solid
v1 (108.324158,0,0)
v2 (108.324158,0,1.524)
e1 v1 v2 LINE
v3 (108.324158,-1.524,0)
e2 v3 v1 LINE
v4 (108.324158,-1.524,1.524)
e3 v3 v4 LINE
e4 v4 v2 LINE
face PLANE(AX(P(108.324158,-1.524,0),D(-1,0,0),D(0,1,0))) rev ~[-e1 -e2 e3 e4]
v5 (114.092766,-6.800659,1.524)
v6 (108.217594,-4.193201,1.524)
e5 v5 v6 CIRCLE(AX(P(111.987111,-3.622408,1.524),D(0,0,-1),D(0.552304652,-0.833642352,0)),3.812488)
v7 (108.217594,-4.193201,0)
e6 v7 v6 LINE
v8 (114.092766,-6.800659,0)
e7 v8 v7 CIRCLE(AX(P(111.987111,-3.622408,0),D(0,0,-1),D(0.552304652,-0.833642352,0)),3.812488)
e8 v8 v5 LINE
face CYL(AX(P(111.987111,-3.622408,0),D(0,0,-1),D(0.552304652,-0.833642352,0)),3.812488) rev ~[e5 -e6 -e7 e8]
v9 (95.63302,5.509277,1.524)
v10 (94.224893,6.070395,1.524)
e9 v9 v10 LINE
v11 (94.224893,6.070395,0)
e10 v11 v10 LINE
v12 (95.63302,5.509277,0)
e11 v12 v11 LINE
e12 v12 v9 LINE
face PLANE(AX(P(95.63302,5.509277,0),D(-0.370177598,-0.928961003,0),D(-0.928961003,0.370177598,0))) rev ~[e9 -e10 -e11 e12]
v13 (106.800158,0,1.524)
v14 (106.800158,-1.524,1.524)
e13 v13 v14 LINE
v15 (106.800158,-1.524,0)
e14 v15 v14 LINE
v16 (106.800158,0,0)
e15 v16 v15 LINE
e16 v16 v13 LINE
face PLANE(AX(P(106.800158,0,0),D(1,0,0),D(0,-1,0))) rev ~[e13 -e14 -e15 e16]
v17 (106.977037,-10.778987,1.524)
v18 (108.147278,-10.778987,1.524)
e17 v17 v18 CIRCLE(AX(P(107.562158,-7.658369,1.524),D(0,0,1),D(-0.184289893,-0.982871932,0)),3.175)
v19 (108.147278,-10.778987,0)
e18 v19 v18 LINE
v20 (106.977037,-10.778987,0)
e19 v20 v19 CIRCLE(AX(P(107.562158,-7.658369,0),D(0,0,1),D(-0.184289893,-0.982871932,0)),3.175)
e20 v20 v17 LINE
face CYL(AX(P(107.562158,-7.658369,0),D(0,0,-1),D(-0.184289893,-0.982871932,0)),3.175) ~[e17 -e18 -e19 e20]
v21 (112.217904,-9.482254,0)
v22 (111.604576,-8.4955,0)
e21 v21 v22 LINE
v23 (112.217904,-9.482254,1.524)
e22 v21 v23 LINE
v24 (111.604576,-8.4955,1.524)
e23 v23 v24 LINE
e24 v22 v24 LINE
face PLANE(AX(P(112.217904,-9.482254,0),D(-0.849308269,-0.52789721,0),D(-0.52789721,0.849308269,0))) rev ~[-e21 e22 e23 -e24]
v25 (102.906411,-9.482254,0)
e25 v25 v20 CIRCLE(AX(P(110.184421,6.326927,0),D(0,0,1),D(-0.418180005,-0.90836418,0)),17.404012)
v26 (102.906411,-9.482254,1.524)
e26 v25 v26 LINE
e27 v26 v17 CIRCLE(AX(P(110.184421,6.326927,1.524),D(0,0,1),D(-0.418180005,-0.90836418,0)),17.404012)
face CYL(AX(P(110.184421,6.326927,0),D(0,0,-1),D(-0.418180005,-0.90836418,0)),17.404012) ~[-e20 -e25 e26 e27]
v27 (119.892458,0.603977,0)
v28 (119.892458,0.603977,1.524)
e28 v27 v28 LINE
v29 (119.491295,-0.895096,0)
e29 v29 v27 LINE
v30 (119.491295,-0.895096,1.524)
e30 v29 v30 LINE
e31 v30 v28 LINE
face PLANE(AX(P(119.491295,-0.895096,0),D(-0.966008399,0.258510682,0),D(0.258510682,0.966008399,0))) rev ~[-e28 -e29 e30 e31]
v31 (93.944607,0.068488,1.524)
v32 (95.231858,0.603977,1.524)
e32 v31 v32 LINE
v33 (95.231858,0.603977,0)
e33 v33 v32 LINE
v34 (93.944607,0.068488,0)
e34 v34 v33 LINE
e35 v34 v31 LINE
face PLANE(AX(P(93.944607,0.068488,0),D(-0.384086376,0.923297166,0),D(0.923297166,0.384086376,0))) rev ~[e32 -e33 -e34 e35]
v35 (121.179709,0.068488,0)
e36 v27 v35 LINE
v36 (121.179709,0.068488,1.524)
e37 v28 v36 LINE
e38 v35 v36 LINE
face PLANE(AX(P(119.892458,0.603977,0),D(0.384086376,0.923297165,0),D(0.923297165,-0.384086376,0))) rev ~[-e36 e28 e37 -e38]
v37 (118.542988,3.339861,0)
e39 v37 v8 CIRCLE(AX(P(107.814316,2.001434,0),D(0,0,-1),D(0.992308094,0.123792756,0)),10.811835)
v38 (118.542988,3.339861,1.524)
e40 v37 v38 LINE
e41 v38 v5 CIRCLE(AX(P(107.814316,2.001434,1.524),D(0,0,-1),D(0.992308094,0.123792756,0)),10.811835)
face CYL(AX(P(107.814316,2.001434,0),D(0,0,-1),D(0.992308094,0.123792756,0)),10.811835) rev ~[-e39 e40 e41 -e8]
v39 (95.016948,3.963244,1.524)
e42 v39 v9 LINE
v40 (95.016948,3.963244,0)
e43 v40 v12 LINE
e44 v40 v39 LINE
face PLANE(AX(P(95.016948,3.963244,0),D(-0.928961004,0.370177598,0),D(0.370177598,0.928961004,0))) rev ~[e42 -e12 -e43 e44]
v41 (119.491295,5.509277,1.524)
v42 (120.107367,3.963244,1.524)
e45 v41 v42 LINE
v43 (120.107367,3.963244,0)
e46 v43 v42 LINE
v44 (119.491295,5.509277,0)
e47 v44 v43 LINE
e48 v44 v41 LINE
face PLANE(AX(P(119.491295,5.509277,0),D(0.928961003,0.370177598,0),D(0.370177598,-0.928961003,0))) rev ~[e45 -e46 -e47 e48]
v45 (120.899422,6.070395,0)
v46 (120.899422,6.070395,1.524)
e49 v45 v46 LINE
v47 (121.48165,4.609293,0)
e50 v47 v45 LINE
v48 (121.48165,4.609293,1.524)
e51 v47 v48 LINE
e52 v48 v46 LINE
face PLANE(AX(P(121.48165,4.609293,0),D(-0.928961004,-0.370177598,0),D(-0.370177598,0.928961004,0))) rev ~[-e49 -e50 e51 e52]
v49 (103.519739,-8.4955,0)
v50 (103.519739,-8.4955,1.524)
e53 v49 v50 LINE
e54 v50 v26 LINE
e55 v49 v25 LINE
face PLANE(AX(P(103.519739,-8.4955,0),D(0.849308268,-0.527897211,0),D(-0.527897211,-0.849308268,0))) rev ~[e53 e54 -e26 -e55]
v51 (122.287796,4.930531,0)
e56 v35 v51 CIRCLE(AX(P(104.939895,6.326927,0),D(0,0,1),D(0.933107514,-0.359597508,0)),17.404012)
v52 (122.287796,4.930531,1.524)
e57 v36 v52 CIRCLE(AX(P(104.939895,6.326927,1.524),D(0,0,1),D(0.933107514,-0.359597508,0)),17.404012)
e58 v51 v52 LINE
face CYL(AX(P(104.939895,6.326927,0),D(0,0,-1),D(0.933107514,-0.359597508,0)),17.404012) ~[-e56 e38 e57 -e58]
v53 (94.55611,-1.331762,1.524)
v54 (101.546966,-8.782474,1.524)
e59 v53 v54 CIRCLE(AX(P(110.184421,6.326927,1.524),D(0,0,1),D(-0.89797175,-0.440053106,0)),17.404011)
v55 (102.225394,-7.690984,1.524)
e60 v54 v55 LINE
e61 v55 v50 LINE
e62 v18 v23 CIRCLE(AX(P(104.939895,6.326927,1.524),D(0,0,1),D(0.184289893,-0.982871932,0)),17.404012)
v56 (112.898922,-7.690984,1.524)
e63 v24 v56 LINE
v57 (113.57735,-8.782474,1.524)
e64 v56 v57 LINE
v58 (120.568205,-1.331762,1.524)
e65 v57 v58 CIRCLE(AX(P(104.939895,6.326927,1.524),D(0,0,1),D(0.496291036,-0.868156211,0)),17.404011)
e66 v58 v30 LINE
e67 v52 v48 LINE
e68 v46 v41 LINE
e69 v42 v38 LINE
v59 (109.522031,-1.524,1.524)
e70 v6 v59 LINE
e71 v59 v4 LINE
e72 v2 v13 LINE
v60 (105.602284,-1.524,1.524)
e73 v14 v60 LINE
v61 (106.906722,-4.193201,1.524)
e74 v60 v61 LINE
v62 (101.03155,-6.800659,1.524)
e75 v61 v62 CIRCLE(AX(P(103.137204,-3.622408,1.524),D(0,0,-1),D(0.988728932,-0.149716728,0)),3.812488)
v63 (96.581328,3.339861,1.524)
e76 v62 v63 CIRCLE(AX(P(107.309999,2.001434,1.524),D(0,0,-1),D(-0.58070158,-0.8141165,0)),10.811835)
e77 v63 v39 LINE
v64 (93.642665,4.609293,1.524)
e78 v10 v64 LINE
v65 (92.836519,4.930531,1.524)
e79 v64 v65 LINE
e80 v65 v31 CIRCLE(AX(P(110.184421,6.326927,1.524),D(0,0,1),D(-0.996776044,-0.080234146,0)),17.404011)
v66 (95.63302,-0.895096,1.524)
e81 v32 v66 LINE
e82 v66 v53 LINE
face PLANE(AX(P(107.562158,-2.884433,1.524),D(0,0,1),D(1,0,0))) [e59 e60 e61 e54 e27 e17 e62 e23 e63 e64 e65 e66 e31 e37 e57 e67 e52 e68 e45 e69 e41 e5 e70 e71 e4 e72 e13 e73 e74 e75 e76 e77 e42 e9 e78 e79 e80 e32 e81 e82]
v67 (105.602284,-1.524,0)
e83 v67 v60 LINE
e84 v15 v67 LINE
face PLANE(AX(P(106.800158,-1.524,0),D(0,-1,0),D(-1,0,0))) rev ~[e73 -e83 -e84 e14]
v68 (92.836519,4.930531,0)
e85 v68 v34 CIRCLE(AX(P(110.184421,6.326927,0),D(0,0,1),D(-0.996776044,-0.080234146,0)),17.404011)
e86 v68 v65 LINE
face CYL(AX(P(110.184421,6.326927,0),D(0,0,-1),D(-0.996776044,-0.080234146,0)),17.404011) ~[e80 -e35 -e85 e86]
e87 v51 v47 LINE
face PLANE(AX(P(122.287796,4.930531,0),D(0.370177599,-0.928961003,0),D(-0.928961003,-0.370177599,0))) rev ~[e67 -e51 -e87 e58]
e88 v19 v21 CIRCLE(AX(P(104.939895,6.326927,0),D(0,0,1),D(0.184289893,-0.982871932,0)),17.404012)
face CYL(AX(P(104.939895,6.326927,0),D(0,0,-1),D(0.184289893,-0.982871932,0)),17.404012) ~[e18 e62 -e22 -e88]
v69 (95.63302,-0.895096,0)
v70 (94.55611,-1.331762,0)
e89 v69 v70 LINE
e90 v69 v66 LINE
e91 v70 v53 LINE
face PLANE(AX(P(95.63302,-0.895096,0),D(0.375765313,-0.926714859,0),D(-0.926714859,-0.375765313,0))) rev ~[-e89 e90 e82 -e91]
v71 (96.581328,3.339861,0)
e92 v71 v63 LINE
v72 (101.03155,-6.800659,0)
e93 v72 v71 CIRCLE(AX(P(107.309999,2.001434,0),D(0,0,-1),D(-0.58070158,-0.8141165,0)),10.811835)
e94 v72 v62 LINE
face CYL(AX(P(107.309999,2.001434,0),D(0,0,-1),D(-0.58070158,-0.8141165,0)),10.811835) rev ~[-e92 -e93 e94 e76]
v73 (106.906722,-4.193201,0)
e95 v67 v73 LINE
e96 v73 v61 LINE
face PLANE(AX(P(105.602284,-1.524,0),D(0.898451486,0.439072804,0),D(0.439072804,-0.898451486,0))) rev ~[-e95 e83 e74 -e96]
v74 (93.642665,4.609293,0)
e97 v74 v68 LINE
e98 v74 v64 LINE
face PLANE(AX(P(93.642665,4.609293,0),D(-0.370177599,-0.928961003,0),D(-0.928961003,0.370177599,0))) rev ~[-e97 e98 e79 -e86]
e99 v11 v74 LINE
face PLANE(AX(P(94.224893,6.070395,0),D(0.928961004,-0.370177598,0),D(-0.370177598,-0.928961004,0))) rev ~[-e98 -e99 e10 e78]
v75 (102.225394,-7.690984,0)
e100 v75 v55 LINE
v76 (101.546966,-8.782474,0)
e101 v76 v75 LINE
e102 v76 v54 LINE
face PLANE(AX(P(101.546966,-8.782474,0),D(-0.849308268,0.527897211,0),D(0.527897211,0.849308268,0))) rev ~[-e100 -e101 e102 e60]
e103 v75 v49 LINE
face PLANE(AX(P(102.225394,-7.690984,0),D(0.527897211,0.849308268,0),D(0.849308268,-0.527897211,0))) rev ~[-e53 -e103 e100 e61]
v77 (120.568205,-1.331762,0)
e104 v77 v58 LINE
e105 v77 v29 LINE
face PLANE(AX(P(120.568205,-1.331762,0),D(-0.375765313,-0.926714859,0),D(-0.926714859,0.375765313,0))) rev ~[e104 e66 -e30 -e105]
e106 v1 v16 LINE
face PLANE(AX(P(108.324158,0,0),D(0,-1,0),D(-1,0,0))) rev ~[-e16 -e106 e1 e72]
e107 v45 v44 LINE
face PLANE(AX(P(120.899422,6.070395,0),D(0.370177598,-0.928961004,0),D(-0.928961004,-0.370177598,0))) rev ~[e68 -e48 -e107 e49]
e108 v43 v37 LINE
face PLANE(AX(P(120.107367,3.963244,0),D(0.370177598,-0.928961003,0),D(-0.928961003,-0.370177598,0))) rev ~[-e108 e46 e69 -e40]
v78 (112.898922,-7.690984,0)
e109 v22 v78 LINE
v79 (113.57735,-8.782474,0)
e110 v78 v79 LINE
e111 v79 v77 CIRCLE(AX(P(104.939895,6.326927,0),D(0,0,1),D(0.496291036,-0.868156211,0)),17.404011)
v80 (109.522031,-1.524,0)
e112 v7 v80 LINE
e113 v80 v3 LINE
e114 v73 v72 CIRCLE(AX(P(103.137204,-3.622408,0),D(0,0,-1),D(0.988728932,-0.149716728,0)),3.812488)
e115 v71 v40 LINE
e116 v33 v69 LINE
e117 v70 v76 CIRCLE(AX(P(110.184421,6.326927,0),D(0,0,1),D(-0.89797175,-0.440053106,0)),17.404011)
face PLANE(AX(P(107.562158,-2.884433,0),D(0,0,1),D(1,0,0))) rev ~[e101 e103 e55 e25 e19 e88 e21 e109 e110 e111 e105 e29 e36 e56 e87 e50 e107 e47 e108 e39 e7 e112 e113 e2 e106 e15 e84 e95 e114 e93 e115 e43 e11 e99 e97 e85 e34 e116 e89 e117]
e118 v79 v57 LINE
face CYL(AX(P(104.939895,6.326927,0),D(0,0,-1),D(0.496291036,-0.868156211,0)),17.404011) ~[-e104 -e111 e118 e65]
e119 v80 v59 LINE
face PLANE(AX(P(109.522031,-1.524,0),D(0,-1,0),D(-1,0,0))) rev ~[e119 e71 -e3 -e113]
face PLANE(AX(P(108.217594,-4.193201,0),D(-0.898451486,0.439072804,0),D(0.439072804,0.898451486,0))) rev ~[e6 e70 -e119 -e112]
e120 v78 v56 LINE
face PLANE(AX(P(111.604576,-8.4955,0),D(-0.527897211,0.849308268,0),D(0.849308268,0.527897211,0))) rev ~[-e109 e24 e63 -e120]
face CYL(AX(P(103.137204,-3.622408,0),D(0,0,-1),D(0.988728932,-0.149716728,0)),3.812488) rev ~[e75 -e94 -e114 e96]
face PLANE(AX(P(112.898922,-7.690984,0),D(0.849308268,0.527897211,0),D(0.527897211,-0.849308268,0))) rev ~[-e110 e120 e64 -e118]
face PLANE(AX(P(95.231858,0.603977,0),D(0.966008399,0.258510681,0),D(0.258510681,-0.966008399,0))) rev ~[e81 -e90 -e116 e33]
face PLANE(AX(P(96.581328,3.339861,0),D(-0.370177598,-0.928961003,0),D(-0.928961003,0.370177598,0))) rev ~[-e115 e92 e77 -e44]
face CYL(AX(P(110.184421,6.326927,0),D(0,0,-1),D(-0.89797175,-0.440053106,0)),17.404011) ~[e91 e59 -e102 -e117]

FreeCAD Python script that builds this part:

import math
import FreeCAD as App
import Part
import Sketcher
Q = App.Units.Quantity

doc = App.newDocument("Part")
body = doc.addObject("PartDesign::Body", "Body")

# Sketch on XY plane
sketch1 = body.newObject("Sketcher::SketchObject", "Sketch")
sketch1.AttachmentSupport = (doc.getObject("XY_Plane"), [""])
sketch1.MapMode = "FlatFace"
sketch1.addGeometry([
    Part.LineSegment(App.Vector(106.800158, 0, 0), App.Vector(106.800158, -1.524, 0)),  # 0
    Part.LineSegment(App.Vector(106.800158, -1.524, 0), App.Vector(105.602284, -1.524, 0)),  # 1
    Part.LineSegment(App.Vector(105.602284, -1.524, 0), App.Vector(106.906722, -4.193201, 0)),  # 2
    Part.ArcOfCircle(Part.Circle(App.Vector(103.137204, -3.622408, 0), App.Vector(0, 0, 1), 3.812488), math.radians(-123.525266), math.radians(-8.610511)),  # 3
    Part.ArcOfCircle(Part.Circle(App.Vector(107.309999, 2.001434, 0), App.Vector(0, 0, 1), 10.811835), math.radians(172.888956), math.radians(234.500097)),  # 4
    Part.LineSegment(App.Vector(96.581328, 3.339861, 0), App.Vector(95.016948, 3.963244, 0)),  # 5
    Part.LineSegment(App.Vector(95.016948, 3.963244, 0), App.Vector(95.63302, 5.509277, 0)),  # 6
    Part.LineSegment(App.Vector(95.63302, 5.509277, 0), App.Vector(94.224893, 6.070395, 0)),  # 7
    Part.LineSegment(App.Vector(94.224893, 6.070395, 0), App.Vector(93.642665, 4.609293, 0)),  # 8
    Part.LineSegment(App.Vector(93.642665, 4.609293, 0), App.Vector(92.836519, 4.930531, 0)),  # 9
    Part.ArcOfCircle(Part.Circle(App.Vector(110.184421, 6.326927, 0), App.Vector(0, 0, 1), 17.404011), math.radians(-175.397975), math.radians(-158.92452)),  # 10
    Part.LineSegment(App.Vector(93.944607, 0.068488, 0), App.Vector(95.231858, 0.603977, 0)),  # 11
    Part.LineSegment(App.Vector(95.231858, 0.603977, 0), App.Vector(95.63302, -0.895096, 0)),  # 12
    Part.LineSegment(App.Vector(95.63302, -0.895096, 0), App.Vector(94.55611, -1.331762, 0)),  # 13
    Part.ArcOfCircle(Part.Circle(App.Vector(110.184421, 6.326927, 0), App.Vector(0, 0, 1), 17.404011), math.radians(-153.89273), math.radians(-119.754919)),  # 14
    Part.LineSegment(App.Vector(101.546966, -8.782474, 0), App.Vector(102.225394, -7.690984, 0)),  # 15
    Part.LineSegment(App.Vector(102.225394, -7.690984, 0), App.Vector(103.519739, -8.4955, 0)),  # 16
    Part.LineSegment(App.Vector(103.519739, -8.4955, 0), App.Vector(102.906411, -9.482254, 0)),  # 17
    Part.ArcOfCircle(Part.Circle(App.Vector(110.184421, 6.326927, 0), App.Vector(0, 0, 1), 17.404012), math.radians(-114.719737), math.radians(-100.619734)),  # 18
    Part.ArcOfCircle(Part.Circle(App.Vector(107.562158, -7.658369, 0), App.Vector(0, 0, 1), 3.175), math.radians(-100.619734), math.radians(-79.380266)),  # 19
    Part.ArcOfCircle(Part.Circle(App.Vector(104.939895, 6.326927, 0), App.Vector(0, 0, 1), 17.404012), math.radians(-79.380266), math.radians(-65.280263)),  # 20
    Part.LineSegment(App.Vector(112.217904, -9.482254, 0), App.Vector(111.604576, -8.4955, 0)),  # 21
    Part.LineSegment(App.Vector(111.604576, -8.4955, 0), App.Vector(112.898922, -7.690984, 0)),  # 22
    Part.LineSegment(App.Vector(112.898922, -7.690984, 0), App.Vector(113.57735, -8.782474, 0)),  # 23
    Part.ArcOfCircle(Part.Circle(App.Vector(104.939895, 6.326927, 0), App.Vector(0, 0, 1), 17.404011), math.radians(-60.245081), math.radians(-26.10727)),  # 24
    Part.LineSegment(App.Vector(120.568205, -1.331762, 0), App.Vector(119.491295, -0.895096, 0)),  # 25
    Part.LineSegment(App.Vector(119.491295, -0.895096, 0), App.Vector(119.892458, 0.603977, 0)),  # 26
    Part.LineSegment(App.Vector(119.892458, 0.603977, 0), App.Vector(121.179709, 0.068488, 0)),  # 27
    Part.ArcOfCircle(Part.Circle(App.Vector(104.939895, 6.326927, 0), App.Vector(0, 0, 1), 17.404012), math.radians(-21.07548), math.radians(-4.602025)),  # 28
    Part.LineSegment(App.Vector(122.287796, 4.930531, 0), App.Vector(121.48165, 4.609293, 0)),  # 29
    Part.LineSegment(App.Vector(121.48165, 4.609293, 0), App.Vector(120.899422, 6.070395, 0)),  # 30
    Part.LineSegment(App.Vector(120.899422, 6.070395, 0), App.Vector(119.491295, 5.509277, 0)),  # 31
    Part.LineSegment(App.Vector(119.491295, 5.509277, 0), App.Vector(120.107367, 3.963244, 0)),  # 32
    Part.LineSegment(App.Vector(120.107367, 3.963244, 0), App.Vector(118.542988, 3.339861, 0)),  # 33
    Part.ArcOfCircle(Part.Circle(App.Vector(107.814316, 2.001434, 0), App.Vector(0, 0, 1), 10.811835), math.radians(-54.500097), math.radians(7.111044)),  # 34
    Part.ArcOfCircle(Part.Circle(App.Vector(111.987111, -3.622408, 0), App.Vector(0, 0, 1), 3.812488), math.radians(-171.389489), math.radians(-56.474734)),  # 35
    Part.LineSegment(App.Vector(108.217594, -4.193201, 0), App.Vector(109.522031, -1.524, 0)),  # 36
    Part.LineSegment(App.Vector(109.522031, -1.524, 0), App.Vector(108.324158, -1.524, 0)),  # 37
    Part.LineSegment(App.Vector(108.324158, -1.524, 0), App.Vector(108.324158, 0, 0)),  # 38
    Part.LineSegment(App.Vector(108.324158, 0, 0), App.Vector(106.800158, 0, 0)),  # 39
], False)
sketch1.addConstraint([
    Sketcher.Constraint("Coincident", 0, 2, 1, 1),
    Sketcher.Constraint("Coincident", 1, 2, 2, 1),
    Sketcher.Constraint("Coincident", 2, 2, 3, 2),
    Sketcher.Constraint("Coincident", 3, 1, 4, 2),
    Sketcher.Constraint("Coincident", 4, 1, 5, 1),
    Sketcher.Constraint("Coincident", 5, 2, 6, 1),
    Sketcher.Constraint("Coincident", 6, 2, 7, 1),
    Sketcher.Constraint("Coincident", 7, 2, 8, 1),
    Sketcher.Constraint("Coincident", 8, 2, 9, 1),
    Sketcher.Constraint("Coincident", 9, 2, 10, 1),
    Sketcher.Constraint("Coincident", 10, 2, 11, 1),
    Sketcher.Constraint("Coincident", 11, 2, 12, 1),
    Sketcher.Constraint("Coincident", 12, 2, 13, 1),
    Sketcher.Constraint("Coincident", 13, 2, 14, 1),
    Sketcher.Constraint("Coincident", 14, 2, 15, 1),
    Sketcher.Constraint("Coincident", 15, 2, 16, 1),
    Sketcher.Constraint("Coincident", 16, 2, 17, 1),
    Sketcher.Constraint("Coincident", 17, 2, 18, 1),
    Sketcher.Constraint("Coincident", 18, 2, 19, 1),
    Sketcher.Constraint("Coincident", 19, 2, 20, 1),
    Sketcher.Constraint("Coincident", 20, 2, 21, 1),
    Sketcher.Constraint("Coincident", 21, 2, 22, 1),
    Sketcher.Constraint("Coincident", 22, 2, 23, 1),
    Sketcher.Constraint("Coincident", 23, 2, 24, 1),
    Sketcher.Constraint("Coincident", 24, 2, 25, 1),
    Sketcher.Constraint("Coincident", 25, 2, 26, 1),
    Sketcher.Constraint("Coincident", 26, 2, 27, 1),
    Sketcher.Constraint("Coincident", 27, 2, 28, 1),
    Sketcher.Constraint("Coincident", 28, 2, 29, 1),
    Sketcher.Constraint("Coincident", 29, 2, 30, 1),
    Sketcher.Constraint("Coincident", 30, 2, 31, 1),
    Sketcher.Constraint("Coincident", 31, 2, 32, 1),
    Sketcher.Constraint("Coincident", 32, 2, 33, 1),
    Sketcher.Constraint("Coincident", 33, 2, 34, 2),
    Sketcher.Constraint("Coincident", 34, 1, 35, 2),
    Sketcher.Constraint("Coincident", 35, 1, 36, 1),
    Sketcher.Constraint("Coincident", 36, 2, 37, 1),
    Sketcher.Constraint("Coincident", 37, 2, 38, 1),
    Sketcher.Constraint("Coincident", 38, 2, 39, 1),
    Sketcher.Constraint("Coincident", 39, 2, 0, 1),
    Sketcher.Constraint("Vertical", 0),
    Sketcher.Constraint("Horizontal", 1),
    Sketcher.Constraint("Horizontal", 37),
    Sketcher.Constraint("Vertical", 38),
    Sketcher.Constraint("Horizontal", 39),
    Sketcher.Constraint("Coincident", 14, 3, 10, 3),
    Sketcher.Constraint("Coincident", 18, 3, 10, 3),
    Sketcher.Constraint("Coincident", 24, 3, 20, 3),
    Sketcher.Constraint("Coincident", 28, 3, 20, 3),
    Sketcher.Constraint("PointOnObject", 38, 2, -1),
    Sketcher.Constraint("Radius", 19, Q("0.125 in")),
    Sketcher.Constraint("DistanceX", 39, 2, 39, 1, Q("0.06 in")),
    Sketcher.Constraint("DistanceY", 0, 2, 0, 1, Q("0.06 in")),
    Sketcher.Constraint("DistanceY", 38, 1, 38, 2, Q("0.06 in")),
    Sketcher.Constraint("Distance", 16, Q("0.06 in")),
    Sketcher.Constraint("Distance", 22, Q("0.06 in")),
    Sketcher.Constraint("DistanceX", 0, 2, 19, 3, Q("0.03 in")),
    Sketcher.Constraint("Radius", 10, 17.404011),
    Sketcher.Constraint("Radius", 14, 17.404011),
    Sketcher.Constraint("Radius", 18, 17.404012),
    Sketcher.Constraint("Radius", 20, 17.404012),
    Sketcher.Constraint("Radius", 24, 17.404011),
    Sketcher.Constraint("Radius", 28, 17.404012),
    Sketcher.Constraint("Radius", 3, 3.812488),
    Sketcher.Constraint("Radius", 4, 10.811835),
    Sketcher.Constraint("Radius", 34, 10.811835),
    Sketcher.Constraint("Radius", 35, 3.812488),
    Sketcher.Constraint("DistanceY", 24, 2, 29, 2, Q("0.2338998 in")),
    Sketcher.Constraint("DistanceX", -1, 1, 4, 3, 107.309999),
    Sketcher.Constraint("DistanceY", 2, 2, -1, 1, 4.193201),
    Sketcher.Constraint("DistanceY", 16, 2, -1, 1, 8.4955),
    Sketcher.Constraint("DistanceY", 21, 2, -1, 1, 8.4955),
    Sketcher.Constraint("DistanceY", 35, 1, -1, 1, 4.193201),
    Sketcher.Constraint("DistanceX", 7, 2, 28, 3, 10.715002),
    Sketcher.Constraint("DistanceY", 8, 2, 7, 2, 1.461102),
    Sketcher.Constraint("DistanceX", 9, 2, 6, 2, 2.796501),
    Sketcher.Constraint("DistanceY", 11, 2, 6, 2, 4.9053),
    Sketcher.Constraint("DistanceX", 16, 2, 18, 2, 3.457298),
    Sketcher.Constraint("DistanceX", 19, 2, 21, 2, 3.457298),
    Sketcher.Constraint("DistanceX", 20, 2, 24, 2, 8.350301),
    Sketcher.Constraint("DistanceX", 25, 2, 28, 2, 2.796501),
    Sketcher.Constraint("DistanceY", 29, 2, 30, 2, 1.461102),
    Sketcher.Constraint("DistanceX", 31, 2, 28, 2, 2.796501),
    Sketcher.Constraint("DistanceY", 26, 2, 31, 2, 4.9053),
    Sketcher.Constraint("Distance", 2, 2.970891),
    Sketcher.Constraint("Distance", 5, 1.68401),
    Sketcher.Constraint("Distance", 6, 1.664261),
    Sketcher.Constraint("Distance", 7, 1.515809),
    Sketcher.Constraint("Distance", 11, 1.394189),
    Sketcher.Constraint("Distance", 12, 1.551821),
    Sketcher.Constraint("Distance", 15, 1.285151),
    Sketcher.Constraint("Distance", 23, 1.285151),
    Sketcher.Constraint("Distance", 26, 1.551821),
    Sketcher.Constraint("Distance", 27, 1.394189),
    Sketcher.Constraint("Distance", 31, 1.515809),
    Sketcher.Constraint("Distance", 32, 1.664261),
    Sketcher.Constraint("Distance", 33, 1.68401),
    Sketcher.Constraint("Distance", 36, 2.970891),
    Sketcher.Constraint("DistanceX", 1, 2, 1, 1, 1.197874),
    Sketcher.Constraint("DistanceX", 37, 2, 37, 1, 1.197874),
    Sketcher.Constraint("DistanceX", -1, 1, 10, 3, 110.184421),
    Sketcher.Constraint("DistanceY", 19, 3, -1, 1, 7.658369),
    Sketcher.Constraint("DistanceX", -1, 1, 35, 3, 111.987111),
    Sketcher.Constraint("DistanceX", -1, 1, 2, 2, 106.906722),
    Sketcher.Constraint("DistanceX", -1, 1, 3, 1, 101.03155),
    Sketcher.Constraint("DistanceY", 3, 1, -1, 1, 6.800659),
    Sketcher.Constraint("DistanceY", -1, 1, 4, 1, 3.339861),
    Sketcher.Constraint("DistanceX", -1, 1, 5, 2, 95.016948),
    Sketcher.Constraint("DistanceX", -1, 1, 6, 2, 95.63302),
    Sketcher.Constraint("DistanceX", -1, 1, 12, 2, 95.63302),
    Sketcher.Constraint("DistanceX", -1, 1, 13, 2, 94.55611),
    Sketcher.Constraint("DistanceX", -1, 1, 16, 2, 103.519739),
    Sketcher.Constraint("DistanceX", -1, 1, 17, 2, 102.906411),
    Sketcher.Constraint("DistanceX", -1, 1, 19, 2, 108.147278),
    Sketcher.Constraint("DistanceX", -1, 1, 22, 2, 112.898922),
    Sketcher.Constraint("DistanceX", -1, 1, 23, 2, 113.57735),
    Sketcher.Constraint("DistanceX", -1, 1, 27, 2, 121.179709),
    Sketcher.Constraint("DistanceY", -1, 1, 28, 2, 4.930531),
    Sketcher.Constraint("DistanceX", -1, 1, 29, 2, 121.48165),
    Sketcher.Constraint("DistanceY", -1, 1, 33, 2, 3.339861),
    Sketcher.Constraint("DistanceY", 34, 1, -1, 1, 6.800659),
    Sketcher.Constraint("DistanceX", 24, 3, 34, 3, 2.874422),
    Sketcher.Constraint("DistanceX", 8, 2, 7, 2, 0.582228),
    Sketcher.Constraint("DistanceX", 10, 2, 5, 2, 1.072341),
    Sketcher.Constraint("DistanceX", 14, 2, 3, 3, 1.590239),
    Sketcher.Constraint("DistanceX", 21, 2, 20, 2, 0.613328),
    Sketcher.Constraint("DistanceY", 22, 2, 25, 2, 6.795889),
])
pad1 = body.newObject("PartDesign::Pad", "Pad")
pad1.Profile = sketch1
pad1.Length = Q("0.06 in")

doc.recompute()
